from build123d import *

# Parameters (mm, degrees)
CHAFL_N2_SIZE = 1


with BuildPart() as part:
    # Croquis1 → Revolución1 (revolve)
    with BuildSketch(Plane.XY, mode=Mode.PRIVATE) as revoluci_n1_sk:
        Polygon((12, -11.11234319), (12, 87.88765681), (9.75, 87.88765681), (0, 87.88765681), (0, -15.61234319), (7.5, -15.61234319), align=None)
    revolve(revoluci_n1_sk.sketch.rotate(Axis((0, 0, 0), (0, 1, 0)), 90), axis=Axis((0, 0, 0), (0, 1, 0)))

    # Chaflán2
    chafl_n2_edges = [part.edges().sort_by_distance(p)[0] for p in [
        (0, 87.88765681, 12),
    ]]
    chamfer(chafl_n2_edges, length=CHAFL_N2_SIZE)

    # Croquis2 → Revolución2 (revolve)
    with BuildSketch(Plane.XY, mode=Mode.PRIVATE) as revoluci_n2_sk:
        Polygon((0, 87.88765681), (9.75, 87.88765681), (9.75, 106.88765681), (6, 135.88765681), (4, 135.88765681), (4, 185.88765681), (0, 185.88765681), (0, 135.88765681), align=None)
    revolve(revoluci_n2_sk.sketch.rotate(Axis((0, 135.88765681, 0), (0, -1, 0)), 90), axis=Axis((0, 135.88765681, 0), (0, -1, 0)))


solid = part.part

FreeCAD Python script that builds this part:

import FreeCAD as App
import Part
import Sketcher
Q = App.Units.Quantity


def edges_at(feature, points):
    """Names of the edges that pass closest to the given points."""
    edges = feature.Shape.Edges
    near = lambda p: min(range(len(edges)), key=lambda i: edges[i].distToShape(Part.Vertex(*p))[0])
    return sorted({f"Edge{near(p) + 1}" for p in points})

doc = App.newDocument("Part")
body = doc.addObject("PartDesign::Body", "Body")

# Sketch on XY plane
sketch1 = body.newObject("Sketcher::SketchObject", "Sketch")
sketch1.AttachmentSupport = (doc.getObject("XY_Plane"), [""])
sketch1.MapMode = "FlatFace"
sketch1.addGeometry([
    Part.LineSegment(App.Vector(12, -11, 0), App.Vector(12, 88, 0)),  # 0
    Part.LineSegment(App.Vector(12, 88, 0), App.Vector(0, 88, 0)),  # 1
    Part.LineSegment(App.Vector(0, 88, 0), App.Vector(0, -16, 0)),  # 2
    Part.LineSegment(App.Vector(0, -16, 0), App.Vector(8, -16, 0)),  # 3
    Part.LineSegment(App.Vector(8, -16, 0), App.Vector(12, -11, 0)),  # 4
], False)
sketch1.addConstraint([
    Sketcher.Constraint("Coincident", 0, 2, 1, 1),
    Sketcher.Constraint("Coincident", 1, 2, 2, 1),
    Sketcher.Constraint("Coincident", 2, 2, 3, 1),
    Sketcher.Constraint("Coincident", 3, 2, 4, 1),
    Sketcher.Constraint("Coincident", 4, 2, 0, 1),
    Sketcher.Constraint("Vertical", 0),
    Sketcher.Constraint("Horizontal", 1),
    Sketcher.Constraint("Vertical", 2),
    Sketcher.Constraint("Horizontal", 3),
    Sketcher.Constraint("PointOnObject", 1, 2, -2),
    Sketcher.Constraint("DistanceX", 1, 2, 1, 1, Q("12 mm")),
    Sketcher.Constraint("DistanceY", 0, 1, 0, 2, Q("99 mm")),
    Sketcher.Constraint("Angle", 4, Q("45 deg")),
    Sketcher.Constraint("DistanceX", 3, 1, 3, 2, Q("7.5 mm")),
    Sketcher.Constraint("DistanceY", -1, 1, 0, 2, Q("87.887657 mm")),
])
revolution = body.newObject("PartDesign::Revolution", "Revolution")
revolution.Profile = sketch1
revolution.ReferenceAxis = (sketch1, ["V_Axis"])
revolution.Angle = 360
doc.recompute()

chamfer = body.newObject("PartDesign::Chamfer", "Chamfer")
chamfer.Base = (revolution, edges_at(revolution, [(0, 87.888, 12)]))
chamfer.Size = 1

# Sketch on XY plane
sketch2 = body.newObject("Sketcher::SketchObject", "Sketch001")
sketch2.AttachmentSupport = (doc.getObject("XY_Plane"), [""])
sketch2.MapMode = "FlatFace"
sketch2.addGeometry([
    Part.LineSegment(App.Vector(0, 87.9, 0), App.Vector(9.8, 87.9, 0)),  # 0
    Part.LineSegment(App.Vector(9.8, 87.9, 0), App.Vector(9.8, 106.9, 0)),  # 1
    Part.LineSegment(App.Vector(9.8, 106.9, 0), App.Vector(6, 135.9, 0)),  # 2
    Part.LineSegment(App.Vector(6, 135.9, 0), App.Vector(4, 135.9, 0)),  # 3
    Part.LineSegment(App.Vector(4, 135.9, 0), App.Vector(4, 185.9, 0)),  # 4
    Part.LineSegment(App.Vector(4, 185.9, 0), App.Vector(0, 185.9, 0)),  # 5
    Part.LineSegment(App.Vector(0, 185.9, 0), App.Vector(0, 87.9, 0)),  # 6
], False)
sketch2.addConstraint([
    Sketcher.Constraint("Coincident", 0, 2, 1, 1),
    Sketcher.Constraint("Coincident", 1, 2, 2, 1),
    Sketcher.Constraint("Coincident", 2, 2, 3, 1),
    Sketcher.Constraint("Coincident", 3, 2, 4, 1),
    Sketcher.Constraint("Coincident", 4, 2, 5, 1),
    Sketcher.Constraint("Coincident", 5, 2, 6, 1),
    Sketcher.Constraint("Coincident", 6, 2, 0, 1),
    Sketcher.Constraint("Horizontal", 0),
    Sketcher.Constraint("Vertical", 1),
    Sketcher.Constraint("Horizontal", 3),
    Sketcher.Constraint("Vertical", 4),
    Sketcher.Constraint("Horizontal", 5),
    Sketcher.Constraint("Vertical", 6),
    Sketcher.Constraint("PointOnObject", 5, 2, -2),
    Sketcher.Constraint("DistanceX", 3, 2, 3, 1, Q("2 mm")),
    Sketcher.Constraint("DistanceX", 5, 2, 5, 1, Q("4 mm")),
    Sketcher.Constraint("DistanceY", 1, 1, 1, 2, Q("19 mm")),
    Sketcher.Constraint("DistanceY", 4, 1, 4, 2, Q("50 mm")),
    Sketcher.Constraint("DistanceY", 6, 2, 6, 1, Q("98 mm")),
    Sketcher.Constraint("DistanceX", 0, 1, 0, 2, Q("9.75 mm")),
    Sketcher.Constraint("DistanceY", -1, 1, 0, 2, Q("87.887657 mm")),
])
revolution2 = body.newObject("PartDesign::Revolution", "Revolution001")
revolution2.Profile = sketch2
revolution2.ReferenceAxis = (sketch2, ["V_Axis"])
revolution2.Angle = 360

doc.recompute()
